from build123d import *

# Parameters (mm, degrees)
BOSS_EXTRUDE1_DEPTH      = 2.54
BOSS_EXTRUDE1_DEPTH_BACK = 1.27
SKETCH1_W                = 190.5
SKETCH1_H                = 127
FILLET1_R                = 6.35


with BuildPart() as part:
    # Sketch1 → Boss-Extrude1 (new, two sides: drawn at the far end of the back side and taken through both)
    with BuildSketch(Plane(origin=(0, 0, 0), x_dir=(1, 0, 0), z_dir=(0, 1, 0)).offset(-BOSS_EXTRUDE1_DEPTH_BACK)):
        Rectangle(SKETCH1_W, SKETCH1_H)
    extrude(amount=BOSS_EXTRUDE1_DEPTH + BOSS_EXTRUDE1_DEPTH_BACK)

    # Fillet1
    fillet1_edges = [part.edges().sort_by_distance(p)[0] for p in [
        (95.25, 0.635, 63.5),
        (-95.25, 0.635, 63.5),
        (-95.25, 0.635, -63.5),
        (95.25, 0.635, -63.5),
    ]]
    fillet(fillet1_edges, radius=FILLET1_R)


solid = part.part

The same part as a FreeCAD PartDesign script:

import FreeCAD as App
import Part
import Sketcher
Q = App.Units.Quantity


def edges_at(feature, points):
    """Names of the edges that pass closest to the given points."""
    edges = feature.Shape.Edges
    near = lambda p: min(range(len(edges)), key=lambda i: edges[i].distToShape(Part.Vertex(*p))[0])
    return sorted({f"Edge{near(p) + 1}" for p in points})

doc = App.newDocument("Part")
body = doc.addObject("PartDesign::Body", "Body")

# Sketch on XZ plane
sketch1 = body.newObject("Sketcher::SketchObject", "Sketch")
sketch1.AttachmentSupport = (doc.getObject("XZ_Plane"), [""])
sketch1.MapMode = "FlatFace"
sketch1.addGeometry(Part.LineSegment(App.Vector(-95, -64, 0), App.Vector(-95, 64, 0)), False)
sketch1.addGeometry(Part.LineSegment(App.Vector(-95, 64, 0), App.Vector(95, 64, 0)), False)
sketch1.addGeometry(Part.LineSegment(App.Vector(95, 64, 0), App.Vector(95, -64, 0)), False)
sketch1.addGeometry(Part.LineSegment(App.Vector(95, -64, 0), App.Vector(-95, -64, 0)), False)
sketch1.addConstraint(Sketcher.Constraint("Coincident", 0, 2, 1, 1))
sketch1.addConstraint(Sketcher.Constraint("Coincident", 1, 2, 2, 1))
sketch1.addConstraint(Sketcher.Constraint("Coincident", 2, 2, 3, 1))
sketch1.addConstraint(Sketcher.Constraint("Coincident", 3, 2, 0, 1))
sketch1.addConstraint(Sketcher.Constraint("Vertical", 0))
sketch1.addConstraint(Sketcher.Constraint("Horizontal", 1))
sketch1.addConstraint(Sketcher.Constraint("Vertical", 2))
sketch1.addConstraint(Sketcher.Constraint("Horizontal", 3))
sketch1.addConstraint(Sketcher.Constraint("Symmetric", 0, 2, 2, 2, -1, 1))
sketch1.addConstraint(Sketcher.Constraint("DistanceY", 0, 1, 0, 2, Q("5 in")))
sketch1.addConstraint(Sketcher.Constraint("DistanceX", 1, 1, 1, 2, Q("7.5 in")))
pad1 = body.newObject("PartDesign::Pad", "Pad")
pad1.Profile = sketch1
pad1.Type = "TwoLengths"
pad1.Length = Q("0.1 in")
pad1.Length2 = Q("0.05 in")
pad1.Reversed = True
doc.recompute()

fillet = body.newObject("PartDesign::Fillet", "Fillet")
fillet.Base = (pad1, edges_at(pad1, [
    (95.25, 0.635, 63.5),
    (-95.25, 0.635, 63.5),
    (-95.25, 0.635, -63.5),
    (95.25, 0.635, -63.5),
]))
fillet.Radius = Q("0.25 in")

doc.recompute()
